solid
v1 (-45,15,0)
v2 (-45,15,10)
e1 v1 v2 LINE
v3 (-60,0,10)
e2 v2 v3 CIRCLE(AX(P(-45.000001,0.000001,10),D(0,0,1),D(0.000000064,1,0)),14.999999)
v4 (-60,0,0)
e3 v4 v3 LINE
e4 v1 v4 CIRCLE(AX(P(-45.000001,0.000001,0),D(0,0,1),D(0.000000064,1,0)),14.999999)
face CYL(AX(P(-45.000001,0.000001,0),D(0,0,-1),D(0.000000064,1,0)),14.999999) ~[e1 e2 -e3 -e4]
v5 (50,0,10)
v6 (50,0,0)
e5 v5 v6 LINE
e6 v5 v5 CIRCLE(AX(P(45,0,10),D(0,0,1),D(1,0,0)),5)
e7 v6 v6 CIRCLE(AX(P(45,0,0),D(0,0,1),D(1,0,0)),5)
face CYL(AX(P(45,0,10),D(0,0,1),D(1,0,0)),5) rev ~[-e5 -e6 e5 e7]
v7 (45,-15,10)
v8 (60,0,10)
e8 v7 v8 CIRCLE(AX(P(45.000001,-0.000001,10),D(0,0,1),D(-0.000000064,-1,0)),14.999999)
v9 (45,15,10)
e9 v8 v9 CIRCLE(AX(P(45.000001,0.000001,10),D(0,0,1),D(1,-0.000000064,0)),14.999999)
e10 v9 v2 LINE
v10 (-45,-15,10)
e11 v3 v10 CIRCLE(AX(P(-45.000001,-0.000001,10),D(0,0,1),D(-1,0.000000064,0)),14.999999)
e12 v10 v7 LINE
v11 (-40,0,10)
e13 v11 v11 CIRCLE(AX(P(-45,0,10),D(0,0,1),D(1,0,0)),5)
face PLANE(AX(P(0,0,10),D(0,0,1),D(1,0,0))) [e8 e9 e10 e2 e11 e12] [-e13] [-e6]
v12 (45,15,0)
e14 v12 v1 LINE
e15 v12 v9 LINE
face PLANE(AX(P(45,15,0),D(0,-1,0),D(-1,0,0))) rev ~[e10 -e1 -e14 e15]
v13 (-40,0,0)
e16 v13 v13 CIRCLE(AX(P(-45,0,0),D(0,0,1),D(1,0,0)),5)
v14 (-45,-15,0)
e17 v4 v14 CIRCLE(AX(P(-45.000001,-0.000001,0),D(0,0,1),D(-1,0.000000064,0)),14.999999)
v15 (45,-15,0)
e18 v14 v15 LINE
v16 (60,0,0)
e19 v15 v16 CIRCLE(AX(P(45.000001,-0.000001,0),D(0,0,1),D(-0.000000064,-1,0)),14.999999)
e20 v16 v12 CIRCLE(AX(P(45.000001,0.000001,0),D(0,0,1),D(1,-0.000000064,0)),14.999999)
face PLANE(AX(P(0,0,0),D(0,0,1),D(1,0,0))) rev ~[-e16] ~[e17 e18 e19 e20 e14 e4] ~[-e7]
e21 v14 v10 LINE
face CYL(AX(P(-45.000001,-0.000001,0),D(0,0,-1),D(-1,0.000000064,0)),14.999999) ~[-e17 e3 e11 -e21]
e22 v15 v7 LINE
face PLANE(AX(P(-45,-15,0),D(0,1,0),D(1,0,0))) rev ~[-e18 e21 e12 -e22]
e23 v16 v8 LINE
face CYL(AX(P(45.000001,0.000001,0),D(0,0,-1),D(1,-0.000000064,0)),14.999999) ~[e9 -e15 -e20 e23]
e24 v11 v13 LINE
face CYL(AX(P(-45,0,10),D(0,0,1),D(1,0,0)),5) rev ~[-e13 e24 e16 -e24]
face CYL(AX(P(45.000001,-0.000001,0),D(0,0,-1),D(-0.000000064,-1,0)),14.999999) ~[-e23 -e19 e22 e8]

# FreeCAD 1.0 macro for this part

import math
import FreeCAD as App
import Part
import Sketcher
from FreeCAD import Vector

doc = App.newDocument("Part")
body = doc.addObject("PartDesign::Body", "Body")

sketch1 = body.newObject("Sketcher::SketchObject", "Sketch")
sketch1.AttachmentSupport = (doc.getObject("XY_Plane"), [""])
sketch1.MapMode = "FlatFace"
sketch1.addGeometry(Part.ArcOfCircle(Part.Circle(Vector(45, 0, 0), Vector(0, 0, 1), 15), math.radians(0), math.radians(90)), False)
sketch1.addGeometry(Part.LineSegment(Vector(45, 15, 0), Vector(-45, 15, 0)), False)
sketch1.addGeometry(Part.ArcOfCircle(Part.Circle(Vector(-45, 0, 0), Vector(0, 0, 1), 15), math.radians(90), math.radians(180)), False)
sketch1.addGeometry(Part.ArcOfCircle(Part.Circle(Vector(-45, 0, 0), Vector(0, 0, 1), 15), math.radians(180), math.radians(270)), False)
sketch1.addGeometry(Part.LineSegment(Vector(-45, -15, 0), Vector(45, -15, 0)), False)
sketch1.addGeometry(Part.ArcOfCircle(Part.Circle(Vector(45, 0, 0), Vector(0, 0, 1), 15), math.radians(-90), math.radians(0)), False)
sketch1.addConstraint(Sketcher.Constraint("Tangent", 0, 2, 1, 1))
sketch1.addConstraint(Sketcher.Constraint("Tangent", 1, 2, 2, 1))
sketch1.addConstraint(Sketcher.Constraint("Tangent", 2, 2, 3, 1))
sketch1.addConstraint(Sketcher.Constraint("Tangent", 3, 2, 4, 1))
sketch1.addConstraint(Sketcher.Constraint("Tangent", 4, 2, 5, 1))
sketch1.addConstraint(Sketcher.Constraint("Tangent", 5, 2, 0, 1))
sketch1.addConstraint(Sketcher.Constraint("Horizontal", 1))
sketch1.addConstraint(Sketcher.Constraint("Horizontal", 4))
sketch1.addConstraint(Sketcher.Constraint("Equal", 0, 2))
sketch1.addConstraint(Sketcher.Constraint("Equal", 2, 3))
sketch1.addConstraint(Sketcher.Constraint("Symmetric", 0, 3, 2, 3, -1, 1))
sketch1.addConstraint(Sketcher.Constraint("PointOnObject", 2, 2, -1))
sketch1.addConstraint(Sketcher.Constraint("PointOnObject", 5, 2, -1))
sketch1.addConstraint(Sketcher.Constraint("Radius", 0, 14.999999))
sketch1.addConstraint(Sketcher.Constraint("DistanceX", 1, 2, 1, 1, 90.0))
pad1 = body.newObject("PartDesign::Pad", "Pad")
pad1.Profile = sketch1
pad1.Length = 10

sketch2 = body.newObject("Sketcher::SketchObject", "Sketch001")
sketch2.AttachmentSupport = (doc.getObject("XY_Plane"), [""])
sketch2.MapMode = "FlatFace"
sketch2.AttachmentOffset = App.Placement(Vector(0, 0, 10), App.Rotation())
sketch2.addGeometry(Part.Circle(Vector(-45, 0, 0), Vector(0, 0, 1), 5), False)
sketch2.addGeometry(Part.Circle(Vector(45, 0, 0), Vector(0, 0, 1), 5), False)
sketch2.addConstraint(Sketcher.Constraint("Equal", 0, 1))
sketch2.addConstraint(Sketcher.Constraint("Symmetric", 0, 3, 1, 3, -1, 1))
sketch2.addConstraint(Sketcher.Constraint("PointOnObject", 0, 3, -1))
sketch2.addConstraint(Sketcher.Constraint("Diameter", 0, 10.0))
sketch2.addConstraint(Sketcher.Constraint("DistanceX", 0, 3, -1, 1, 45.0))
pocket1 = body.newObject("PartDesign::Pocket", "Pocket")
pocket1.Profile = sketch2
pocket1.Length = 25

doc.recompute()
